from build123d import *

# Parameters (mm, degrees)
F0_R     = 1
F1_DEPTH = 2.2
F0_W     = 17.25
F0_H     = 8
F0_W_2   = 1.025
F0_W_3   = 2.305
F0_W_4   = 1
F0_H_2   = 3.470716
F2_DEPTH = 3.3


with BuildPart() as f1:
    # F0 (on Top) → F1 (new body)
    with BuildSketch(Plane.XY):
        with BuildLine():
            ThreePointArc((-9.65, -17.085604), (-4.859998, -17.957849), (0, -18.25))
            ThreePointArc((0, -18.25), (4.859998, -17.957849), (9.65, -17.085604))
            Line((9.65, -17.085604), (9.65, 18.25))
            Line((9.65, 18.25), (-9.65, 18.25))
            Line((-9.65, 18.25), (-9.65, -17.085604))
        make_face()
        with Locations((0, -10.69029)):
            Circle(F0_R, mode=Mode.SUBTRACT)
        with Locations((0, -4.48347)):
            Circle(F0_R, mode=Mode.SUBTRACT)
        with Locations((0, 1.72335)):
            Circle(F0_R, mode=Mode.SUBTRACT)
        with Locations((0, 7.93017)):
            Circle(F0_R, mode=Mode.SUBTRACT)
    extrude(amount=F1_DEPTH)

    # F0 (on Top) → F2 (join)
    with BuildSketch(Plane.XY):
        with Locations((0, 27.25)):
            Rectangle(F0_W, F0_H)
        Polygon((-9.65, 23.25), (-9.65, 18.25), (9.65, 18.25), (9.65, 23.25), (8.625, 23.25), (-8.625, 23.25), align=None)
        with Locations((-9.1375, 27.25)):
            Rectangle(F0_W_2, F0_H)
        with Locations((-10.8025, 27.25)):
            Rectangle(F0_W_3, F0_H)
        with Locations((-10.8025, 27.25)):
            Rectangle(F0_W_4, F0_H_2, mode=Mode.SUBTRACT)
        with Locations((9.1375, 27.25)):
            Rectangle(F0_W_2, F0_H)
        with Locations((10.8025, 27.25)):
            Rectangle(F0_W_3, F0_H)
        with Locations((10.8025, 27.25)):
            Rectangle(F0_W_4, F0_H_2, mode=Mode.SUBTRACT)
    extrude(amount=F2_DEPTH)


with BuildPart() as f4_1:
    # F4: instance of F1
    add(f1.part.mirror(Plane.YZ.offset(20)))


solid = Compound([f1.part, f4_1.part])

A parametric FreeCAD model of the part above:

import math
import FreeCAD as App
import Part
import Sketcher
from FreeCAD import Vector


def add_polygon(sketch, points):
    """Adds a closed chain of lines whose ends are joined by coincident constraints."""
    first, n = sketch.GeometryCount, len(points)
    for a, b in zip(points, points[1:] + points[:1]):
        sketch.addGeometry(Part.LineSegment(App.Vector(*a, 0), App.Vector(*b, 0)), False)
    for i in range(n):
        sketch.addConstraint(Sketcher.Constraint("Coincident", first + i, 2, first + (i + 1) % n, 1))

doc = App.newDocument("Part")
body = doc.addObject("PartDesign::Body", "Body")

sketch1 = body.newObject("Sketcher::SketchObject", "Sketch")
sketch1.AttachmentSupport = (doc.getObject("XY_Plane"), [""])
sketch1.MapMode = "FlatFace"
sketch1.addGeometry([
    Part.ArcOfCircle(Part.Circle(Vector(0.000001, 22.319677, 0), Vector(0, 0, 1), 40.569677), math.radians(-103.760412), math.radians(-90.000002)),
    Part.ArcOfCircle(Part.Circle(Vector(-0.000001, 22.319677, 0), Vector(0, 0, 1), 40.569677), math.radians(-89.999998), math.radians(-76.239588)),
    Part.LineSegment(Vector(9.65, -17.085604, 0), Vector(9.65, 18.25, 0)),
    Part.LineSegment(Vector(9.65, 18.25, 0), Vector(-9.65, 18.25, 0)),
    Part.LineSegment(Vector(-9.65, 18.25, 0), Vector(-9.65, -17.085604, 0)),
    Part.Circle(Vector(0, -10.69029, 0), Vector(0, 0, 1), 1),
    Part.Circle(Vector(0, -4.48347, 0), Vector(0, 0, 1), 1),
    Part.Circle(Vector(0, 1.72335, 0), Vector(0, 0, 1), 1),
    Part.Circle(Vector(0, 7.93017, 0), Vector(0, 0, 1), 1),
], False)
sketch1.addConstraint([
    Sketcher.Constraint("Tangent", 0, 2, 1, 1),
    Sketcher.Constraint("Coincident", 1, 2, 2, 1),
    Sketcher.Constraint("Coincident", 2, 2, 3, 1),
    Sketcher.Constraint("Coincident", 3, 2, 4, 1),
    Sketcher.Constraint("Coincident", 4, 2, 0, 1),
    Sketcher.Constraint("Vertical", 2),
    Sketcher.Constraint("Horizontal", 3),
    Sketcher.Constraint("Vertical", 4),
    Sketcher.Constraint("Equal", 0, 1),
    Sketcher.Constraint("Equal", 5, 6),
    Sketcher.Constraint("Equal", 6, 7),
    Sketcher.Constraint("Equal", 7, 8),
    Sketcher.Constraint("Symmetric", 1, 2, 4, 2, -2),
    Sketcher.Constraint("PointOnObject", 5, 3, -2),
    Sketcher.Constraint("PointOnObject", 6, 3, -2),
    Sketcher.Constraint("PointOnObject", 7, 3, -2),
    Sketcher.Constraint("PointOnObject", 8, 3, -2),
    Sketcher.Constraint("PointOnObject", 0, 2, -2),
    Sketcher.Constraint("Diameter", 5, 2.0),
    Sketcher.Constraint("DistanceX", 3, 2, 3, 1, 19.3),
    Sketcher.Constraint("DistanceY", 0, 2, -1, 1, 18.25),
    Sketcher.Constraint("DistanceY", -1, 1, 2, 2, 18.25),
    Sketcher.Constraint("Radius", 0, 40.569677),
    Sketcher.Constraint("DistanceY", 5, 3, -1, 1, 10.69029),
    Sketcher.Constraint("DistanceY", 6, 3, -1, 1, 4.48347),
    Sketcher.Constraint("DistanceY", -1, 1, 7, 3, 1.72335),
    Sketcher.Constraint("DistanceY", -1, 1, 8, 3, 7.93017),
])
pad1 = body.newObject("PartDesign::Pad", "Pad")
pad1.Profile = sketch1
pad1.Length = 2.2

sketch2 = body.newObject("Sketcher::SketchObject", "Sketch001")
sketch2.AttachmentSupport = (doc.getObject("XY_Plane"), [""])
sketch2.MapMode = "FlatFace"
add_polygon(sketch2, [(-9.65, 18.25), (9.65, 18.25), (9.65, 23.25), (11.955, 23.25), (11.955, 31.25), (-11.955, 31.25), (-11.955, 23.25), (-9.65, 23.25)])
add_polygon(sketch2, [(-10.3025, 25.514642), (-11.3025, 25.514642), (-11.3025, 28.985358), (-10.3025, 28.985358)])
add_polygon(sketch2, [(11.3025, 25.514642), (10.3025, 25.514642), (10.3025, 28.985358), (11.3025, 28.985358)])
sketch2.addConstraint([
    Sketcher.Constraint("Horizontal", 0),
    Sketcher.Constraint("Vertical", 1),
    Sketcher.Constraint("Horizontal", 2),
    Sketcher.Constraint("Vertical", 3),
    Sketcher.Constraint("Horizontal", 4),
    Sketcher.Constraint("Vertical", 5),
    Sketcher.Constraint("Horizontal", 6),
    Sketcher.Constraint("Vertical", 7),
    Sketcher.Constraint("Horizontal", 8),
    Sketcher.Constraint("Vertical", 9),
    Sketcher.Constraint("Horizontal", 10),
    Sketcher.Constraint("Vertical", 11),
    Sketcher.Constraint("Horizontal", 12),
    Sketcher.Constraint("Vertical", 13),
    Sketcher.Constraint("Horizontal", 14),
    Sketcher.Constraint("Vertical", 15),
    Sketcher.Constraint("Symmetric", 2, 2, 5, 2, -2),
    Sketcher.Constraint("Symmetric", 11, 2, 12, 2, -2),
    Sketcher.Constraint("Symmetric", 9, 2, 14, 2, -2),
    Sketcher.Constraint("Equal", 2, 6),
    Sketcher.Constraint("DistanceX", 8, 2, 8, 1, 1.0),
    Sketcher.Constraint("DistanceY", 1, 1, 1, 2, 5.0),
    Sketcher.Constraint("DistanceY", 3, 1, 3, 2, 8.0),
    Sketcher.Constraint("DistanceX", 0, 1, 0, 2, 19.3),
    Sketcher.Constraint("DistanceX", 4, 2, 4, 1, 23.91),
    Sketcher.Constraint("DistanceY", -1, 1, 0, 2, 18.25),
    Sketcher.Constraint("DistanceX", 8, 2, -1, 1, 11.3025),
    Sketcher.Constraint("DistanceY", 9, 1, 9, 2, 3.470716),
    Sketcher.Constraint("DistanceY", -1, 1, 8, 2, 25.514642),
])
pad2 = body.newObject("PartDesign::Pad", "Pad001")
pad2.Profile = sketch2
pad2.Length = 3.3
body2 = doc.addObject("PartDesign::Body", "Body001")
doc.recompute()

mirroring = doc.addObject("Part::Mirroring", "Mirroring")
mirroring.Source = body
mirroring.Base = Vector(20, 0, 0)
mirroring.Normal = Vector(1, 0, 0)
body2.BaseFeature = mirroring
doc.recompute()
mirroring.Visibility = False

doc.recompute()
